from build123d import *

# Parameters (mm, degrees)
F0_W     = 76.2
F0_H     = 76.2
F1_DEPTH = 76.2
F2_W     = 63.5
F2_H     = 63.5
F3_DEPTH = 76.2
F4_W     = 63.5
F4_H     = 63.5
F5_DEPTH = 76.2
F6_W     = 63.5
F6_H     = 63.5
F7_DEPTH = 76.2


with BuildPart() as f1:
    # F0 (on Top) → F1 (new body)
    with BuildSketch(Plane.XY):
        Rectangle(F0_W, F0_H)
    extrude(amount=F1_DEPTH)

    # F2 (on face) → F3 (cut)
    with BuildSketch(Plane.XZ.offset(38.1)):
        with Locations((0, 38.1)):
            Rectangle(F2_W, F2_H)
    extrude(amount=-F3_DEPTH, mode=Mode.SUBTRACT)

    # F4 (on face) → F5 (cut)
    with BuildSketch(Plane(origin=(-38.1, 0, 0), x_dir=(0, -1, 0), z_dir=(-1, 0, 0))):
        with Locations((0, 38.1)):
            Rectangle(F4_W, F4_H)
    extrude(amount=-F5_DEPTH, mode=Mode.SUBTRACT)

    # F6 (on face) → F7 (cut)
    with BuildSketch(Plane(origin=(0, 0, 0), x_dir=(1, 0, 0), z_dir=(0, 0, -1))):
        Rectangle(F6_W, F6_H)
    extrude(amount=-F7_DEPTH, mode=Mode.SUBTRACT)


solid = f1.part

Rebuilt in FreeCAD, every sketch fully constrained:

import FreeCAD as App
import Part
import Sketcher
Q = App.Units.Quantity

doc = App.newDocument("Part")
params = doc.addObject("Spreadsheet::Sheet", "Params")
for row, (alias, value) in enumerate([
    ("sketch1_width", "3 in"),
    ("pad1_length", "3 in"),
    ("sketch2_width", "2.5 in"),
    ("pocket1_length", "3 in"),
    ("sketch3_width", "2.5 in"),
    ("pocket2_length", "3 in"),
    ("sketch4_width", "2.5 in"),
    ("pocket3_length", "3 in"),
], start=1):
    params.set(f"A{row}", alias)
    params.set(f"B{row}", "=" + value)
    params.setAlias(f"B{row}", alias)

body = doc.addObject("PartDesign::Body", "Body")

# Sketch on XY plane
sketch1 = body.newObject("Sketcher::SketchObject", "Sketch")
sketch1.AttachmentSupport = (doc.getObject("XY_Plane"), [""])
sketch1.MapMode = "FlatFace"
sketch1.addGeometry(Part.LineSegment(App.Vector(-38, 38, 0), App.Vector(-38, -38, 0)), False)
sketch1.addGeometry(Part.LineSegment(App.Vector(-38, -38, 0), App.Vector(38, -38, 0)), False)
sketch1.addGeometry(Part.LineSegment(App.Vector(38, -38, 0), App.Vector(38, 38, 0)), False)
sketch1.addGeometry(Part.LineSegment(App.Vector(38, 38, 0), App.Vector(-38, 38, 0)), False)
sketch1.addConstraint(Sketcher.Constraint("Coincident", 0, 2, 1, 1))
sketch1.addConstraint(Sketcher.Constraint("Coincident", 1, 2, 2, 1))
sketch1.addConstraint(Sketcher.Constraint("Coincident", 2, 2, 3, 1))
sketch1.addConstraint(Sketcher.Constraint("Coincident", 3, 2, 0, 1))
sketch1.addConstraint(Sketcher.Constraint("Vertical", 0))
sketch1.addConstraint(Sketcher.Constraint("Horizontal", 1))
sketch1.addConstraint(Sketcher.Constraint("Vertical", 2))
sketch1.addConstraint(Sketcher.Constraint("Horizontal", 3))
sketch1.addConstraint(Sketcher.Constraint("Symmetric", 0, 2, 2, 2, -1, 1))
sketch1.addConstraint(Sketcher.Constraint("Equal", 3, 0))
sketch1.addConstraint(Sketcher.Constraint("DistanceX", 1, 1, 1, 2, Q("3 in")))
sketch1.setExpression("Constraints[10]", "Params.sketch1_width")
pad1 = body.newObject("PartDesign::Pad", "Pad")
pad1.Profile = sketch1
pad1.setExpression("Length", "Params.pad1_length")

# Sketch on XZ plane
sketch2 = body.newObject("Sketcher::SketchObject", "Sketch001")
sketch2.AttachmentSupport = (doc.getObject("XZ_Plane"), [""])
sketch2.MapMode = "FlatFace"
sketch2.AttachmentOffset = App.Placement(App.Vector(0, 0, 1.5 * 25.4), App.Rotation())
sketch2.addGeometry(Part.LineSegment(App.Vector(-32, 70, 0), App.Vector(-32, 6, 0)), False)
sketch2.addGeometry(Part.LineSegment(App.Vector(-32, 6, 0), App.Vector(32, 6, 0)), False)
sketch2.addGeometry(Part.LineSegment(App.Vector(32, 6, 0), App.Vector(32, 70, 0)), False)
sketch2.addGeometry(Part.LineSegment(App.Vector(32, 70, 0), App.Vector(-32, 70, 0)), False)
sketch2.addConstraint(Sketcher.Constraint("Coincident", 0, 2, 1, 1))
sketch2.addConstraint(Sketcher.Constraint("Coincident", 1, 2, 2, 1))
sketch2.addConstraint(Sketcher.Constraint("Coincident", 2, 2, 3, 1))
sketch2.addConstraint(Sketcher.Constraint("Coincident", 3, 2, 0, 1))
sketch2.addConstraint(Sketcher.Constraint("Vertical", 0))
sketch2.addConstraint(Sketcher.Constraint("Horizontal", 1))
sketch2.addConstraint(Sketcher.Constraint("Vertical", 2))
sketch2.addConstraint(Sketcher.Constraint("Horizontal", 3))
sketch2.addConstraint(Sketcher.Constraint("Equal", 3, 0))
sketch2.addConstraint(Sketcher.Constraint("DistanceX", 1, 1, 1, 2, Q("2.5 in")))
sketch2.addConstraint(Sketcher.Constraint("DistanceX", 0, 2, -1, 1, Q("1.25 in")))
sketch2.addConstraint(Sketcher.Constraint("DistanceY", -1, 1, 0, 2, Q("0.25 in")))
sketch2.setExpression("Constraints[9]", "Params.sketch2_width")
pocket1 = body.newObject("PartDesign::Pocket", "Pocket")
pocket1.Profile = sketch2
pocket1.setExpression("Length", "Params.pocket1_length")

# Sketch on YZ plane
sketch3 = body.newObject("Sketcher::SketchObject", "Sketch002")
sketch3.AttachmentSupport = (doc.getObject("YZ_Plane"), [""])
sketch3.MapMode = "FlatFace"
sketch3.AttachmentOffset = App.Placement(App.Vector(0, 0, -1.5 * 25.4), App.Rotation())
sketch3.addGeometry(Part.LineSegment(App.Vector(32, 70, 0), App.Vector(32, 6, 0)), False)
sketch3.addGeometry(Part.LineSegment(App.Vector(32, 6, 0), App.Vector(-32, 6, 0)), False)
sketch3.addGeometry(Part.LineSegment(App.Vector(-32, 6, 0), App.Vector(-32, 70, 0)), False)
sketch3.addGeometry(Part.LineSegment(App.Vector(-32, 70, 0), App.Vector(32, 70, 0)), False)
sketch3.addConstraint(Sketcher.Constraint("Coincident", 0, 2, 1, 1))
sketch3.addConstraint(Sketcher.Constraint("Coincident", 1, 2, 2, 1))
sketch3.addConstraint(Sketcher.Constraint("Coincident", 2, 2, 3, 1))
sketch3.addConstraint(Sketcher.Constraint("Coincident", 3, 2, 0, 1))
sketch3.addConstraint(Sketcher.Constraint("Vertical", 0))
sketch3.addConstraint(Sketcher.Constraint("Horizontal", 1))
sketch3.addConstraint(Sketcher.Constraint("Vertical", 2))
sketch3.addConstraint(Sketcher.Constraint("Horizontal", 3))
sketch3.addConstraint(Sketcher.Constraint("Equal", 3, 0))
sketch3.addConstraint(Sketcher.Constraint("DistanceX", 1, 2, 1, 1, Q("2.5 in")))
sketch3.addConstraint(Sketcher.Constraint("DistanceX", -1, 1, 0, 2, Q("1.25 in")))
sketch3.addConstraint(Sketcher.Constraint("DistanceY", -1, 1, 0, 2, Q("0.25 in")))
sketch3.setExpression("Constraints[9]", "Params.sketch3_width")
pocket2 = body.newObject("PartDesign::Pocket", "Pocket001")
pocket2.Profile = sketch3
pocket2.setExpression("Length", "Params.pocket2_length")
pocket2.Reversed = True

# Sketch on XY plane
sketch4 = body.newObject("Sketcher::SketchObject", "Sketch003")
sketch4.AttachmentSupport = (doc.getObject("XY_Plane"), [""])
sketch4.MapMode = "FlatFace"
sketch4.addGeometry(Part.LineSegment(App.Vector(-32, -32, 0), App.Vector(-32, 32, 0)), False)
sketch4.addGeometry(Part.LineSegment(App.Vector(-32, 32, 0), App.Vector(32, 32, 0)), False)
sketch4.addGeometry(Part.LineSegment(App.Vector(32, 32, 0), App.Vector(32, -32, 0)), False)
sketch4.addGeometry(Part.LineSegment(App.Vector(32, -32, 0), App.Vector(-32, -32, 0)), False)
sketch4.addConstraint(Sketcher.Constraint("Coincident", 0, 2, 1, 1))
sketch4.addConstraint(Sketcher.Constraint("Coincident", 1, 2, 2, 1))
sketch4.addConstraint(Sketcher.Constraint("Coincident", 2, 2, 3, 1))
sketch4.addConstraint(Sketcher.Constraint("Coincident", 3, 2, 0, 1))
sketch4.addConstraint(Sketcher.Constraint("Vertical", 0))
sketch4.addConstraint(Sketcher.Constraint("Horizontal", 1))
sketch4.addConstraint(Sketcher.Constraint("Vertical", 2))
sketch4.addConstraint(Sketcher.Constraint("Horizontal", 3))
sketch4.addConstraint(Sketcher.Constraint("Symmetric", 0, 2, 2, 2, -1, 1))
sketch4.addConstraint(Sketcher.Constraint("Equal", 3, 0))
sketch4.addConstraint(Sketcher.Constraint("DistanceX", 1, 1, 1, 2, Q("2.5 in")))
sketch4.setExpression("Constraints[10]", "Params.sketch4_width")
pocket3 = body.newObject("PartDesign::Pocket", "Pocket002")
pocket3.Profile = sketch4
pocket3.setExpression("Length", "Params.pocket3_length")
pocket3.Reversed = True

doc.recompute()
